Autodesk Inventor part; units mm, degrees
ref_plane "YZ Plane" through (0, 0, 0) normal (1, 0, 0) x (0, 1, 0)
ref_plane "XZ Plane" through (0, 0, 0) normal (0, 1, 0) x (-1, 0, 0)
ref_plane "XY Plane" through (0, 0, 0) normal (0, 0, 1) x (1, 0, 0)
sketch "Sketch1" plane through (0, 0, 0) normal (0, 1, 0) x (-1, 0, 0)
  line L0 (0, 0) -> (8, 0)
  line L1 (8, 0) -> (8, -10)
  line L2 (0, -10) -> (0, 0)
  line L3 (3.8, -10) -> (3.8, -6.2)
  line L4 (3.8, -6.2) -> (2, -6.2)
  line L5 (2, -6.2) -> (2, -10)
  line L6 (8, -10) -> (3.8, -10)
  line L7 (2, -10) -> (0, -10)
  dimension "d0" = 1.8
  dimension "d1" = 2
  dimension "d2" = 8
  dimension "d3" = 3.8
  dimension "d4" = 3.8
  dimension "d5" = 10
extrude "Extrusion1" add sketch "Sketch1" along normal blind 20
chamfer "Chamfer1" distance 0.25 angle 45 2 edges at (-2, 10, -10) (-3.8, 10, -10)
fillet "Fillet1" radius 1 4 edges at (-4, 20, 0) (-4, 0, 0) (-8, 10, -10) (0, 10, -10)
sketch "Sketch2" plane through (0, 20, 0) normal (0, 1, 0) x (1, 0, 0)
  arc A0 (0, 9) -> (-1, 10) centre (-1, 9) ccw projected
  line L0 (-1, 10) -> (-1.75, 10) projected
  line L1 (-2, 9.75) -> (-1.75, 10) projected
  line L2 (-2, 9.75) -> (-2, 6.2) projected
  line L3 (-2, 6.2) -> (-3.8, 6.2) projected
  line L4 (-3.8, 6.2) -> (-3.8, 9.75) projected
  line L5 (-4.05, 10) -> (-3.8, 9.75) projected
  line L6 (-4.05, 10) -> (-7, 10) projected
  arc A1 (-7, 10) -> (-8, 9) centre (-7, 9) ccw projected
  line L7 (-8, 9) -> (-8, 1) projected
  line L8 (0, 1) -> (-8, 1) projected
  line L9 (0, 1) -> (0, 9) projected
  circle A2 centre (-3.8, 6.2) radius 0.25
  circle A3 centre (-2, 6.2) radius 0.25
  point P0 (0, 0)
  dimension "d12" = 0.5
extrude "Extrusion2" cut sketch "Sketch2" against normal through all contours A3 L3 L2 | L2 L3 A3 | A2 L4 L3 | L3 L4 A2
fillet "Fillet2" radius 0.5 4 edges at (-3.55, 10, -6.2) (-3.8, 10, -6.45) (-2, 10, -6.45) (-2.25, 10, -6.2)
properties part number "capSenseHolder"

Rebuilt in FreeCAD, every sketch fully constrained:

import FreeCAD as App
import Part
import Sketcher


def edges_at(feature, points):
    """Names of the edges that pass closest to the given points."""
    edges = feature.Shape.Edges
    near = lambda p: min(range(len(edges)), key=lambda i: edges[i].distToShape(Part.Vertex(*p))[0])
    return sorted({f"Edge{near(p) + 1}" for p in points})


def add_polygon(sketch, points):
    """Adds a closed chain of lines whose ends are joined by coincident constraints."""
    first, n = sketch.GeometryCount, len(points)
    for a, b in zip(points, points[1:] + points[:1]):
        sketch.addGeometry(Part.LineSegment(App.Vector(*a, 0), App.Vector(*b, 0)), False)
    for i in range(n):
        sketch.addConstraint(Sketcher.Constraint("Coincident", first + i, 2, first + (i + 1) % n, 1))

doc = App.newDocument("Part")
body = doc.addObject("PartDesign::Body", "Body")

sketch1 = body.newObject("Sketcher::SketchObject", "Sketch")
sketch1.AttachmentSupport = (doc.getObject("XZ_Plane"), [""])
sketch1.MapMode = "FlatFace"
add_polygon(sketch1, [(-8, 0), (0, 0), (0, -10), (-2, -10), (-2, -6.2), (-3.8, -6.2), (-3.8, -10), (-8, -10)])
sketch1.addConstraint(Sketcher.Constraint("Horizontal", 0))
sketch1.addConstraint(Sketcher.Constraint("Vertical", 1))
sketch1.addConstraint(Sketcher.Constraint("Horizontal", 2))
sketch1.addConstraint(Sketcher.Constraint("Vertical", 3))
sketch1.addConstraint(Sketcher.Constraint("Horizontal", 4))
sketch1.addConstraint(Sketcher.Constraint("Vertical", 5))
sketch1.addConstraint(Sketcher.Constraint("Horizontal", 6))
sketch1.addConstraint(Sketcher.Constraint("Vertical", 7))
sketch1.addConstraint(Sketcher.Constraint("Coincident", 0, 2, -1, 1))
sketch1.addConstraint(Sketcher.Constraint("Horizontal", 2, 2, 5, 2))
sketch1.addConstraint(Sketcher.Constraint("DistanceX", 0, 1, 0, 2, 8.0))
sketch1.addConstraint(Sketcher.Constraint("DistanceX", 2, 2, 2, 1, 2.0))
sketch1.addConstraint(Sketcher.Constraint("DistanceY", 1, 2, 1, 1, 10.0))
sketch1.addConstraint(Sketcher.Constraint("DistanceX", 4, 2, 4, 1, 1.8))
sketch1.addConstraint(Sketcher.Constraint("DistanceY", 3, 1, 3, 2, 3.8))
pad1 = body.newObject("PartDesign::Pad", "Pad")
pad1.Profile = sketch1
pad1.Length = 20
pad1.Reversed = True
doc.recompute()

chamfer = body.newObject("PartDesign::Chamfer", "Chamfer")
chamfer.Base = (pad1, edges_at(pad1, [(-2, 10, -10), (-3.8, 10, -10)]))
chamfer.Size = 0.25
doc.recompute()

fillet = body.newObject("PartDesign::Fillet", "Fillet")
fillet.Base = (chamfer, edges_at(chamfer, [
    (-4, 20, 0),
    (-4, 0, 0),
    (-8, 10, -10),
    (0, 10, -10),
]))
fillet.Radius = 1

sketch2 = body.newObject("Sketcher::SketchObject", "Sketch001")
sketch2.AttachmentSupport = (doc.getObject("XZ_Plane"), [""])
sketch2.MapMode = "FlatFace"
sketch2.AttachmentOffset = App.Placement(App.Vector(0, 0, -20), App.Rotation())
sketch2.addGeometry(Part.Circle(App.Vector(-2, -6.2, 0), App.Vector(0, 0, 1), 0.25), False)
sketch2.addGeometry(Part.Circle(App.Vector(-3.8, -6.2, 0), App.Vector(0, 0, 1), 0.25), False)
sketch2.addConstraint(Sketcher.Constraint("Equal", 0, 1))
sketch2.addConstraint(Sketcher.Constraint("Horizontal", 0, 3, 1, 3))
sketch2.addConstraint(Sketcher.Constraint("Diameter", 0, 0.5))
sketch2.addConstraint(Sketcher.Constraint("DistanceX", 0, 3, -1, 1, 2.0))
sketch2.addConstraint(Sketcher.Constraint("DistanceY", 0, 3, -1, 1, 6.2))
sketch2.addConstraint(Sketcher.Constraint("DistanceX", 1, 3, -1, 1, 3.8))
pocket1 = body.newObject("PartDesign::Pocket", "Pocket")
pocket1.Profile = sketch2
pocket1.Type = "ThroughAll"
pocket1.Reversed = True
doc.recompute()

fillet2 = body.newObject("PartDesign::Fillet", "Fillet001")
fillet2.Base = (pocket1, edges_at(pocket1, [
    (-3.55, 10, -6.2),
    (-3.8, 10, -6.45),
    (-2, 10, -6.45),
    (-2.25, 10, -6.2),
]))
fillet2.Radius = 0.5

doc.recompute()
